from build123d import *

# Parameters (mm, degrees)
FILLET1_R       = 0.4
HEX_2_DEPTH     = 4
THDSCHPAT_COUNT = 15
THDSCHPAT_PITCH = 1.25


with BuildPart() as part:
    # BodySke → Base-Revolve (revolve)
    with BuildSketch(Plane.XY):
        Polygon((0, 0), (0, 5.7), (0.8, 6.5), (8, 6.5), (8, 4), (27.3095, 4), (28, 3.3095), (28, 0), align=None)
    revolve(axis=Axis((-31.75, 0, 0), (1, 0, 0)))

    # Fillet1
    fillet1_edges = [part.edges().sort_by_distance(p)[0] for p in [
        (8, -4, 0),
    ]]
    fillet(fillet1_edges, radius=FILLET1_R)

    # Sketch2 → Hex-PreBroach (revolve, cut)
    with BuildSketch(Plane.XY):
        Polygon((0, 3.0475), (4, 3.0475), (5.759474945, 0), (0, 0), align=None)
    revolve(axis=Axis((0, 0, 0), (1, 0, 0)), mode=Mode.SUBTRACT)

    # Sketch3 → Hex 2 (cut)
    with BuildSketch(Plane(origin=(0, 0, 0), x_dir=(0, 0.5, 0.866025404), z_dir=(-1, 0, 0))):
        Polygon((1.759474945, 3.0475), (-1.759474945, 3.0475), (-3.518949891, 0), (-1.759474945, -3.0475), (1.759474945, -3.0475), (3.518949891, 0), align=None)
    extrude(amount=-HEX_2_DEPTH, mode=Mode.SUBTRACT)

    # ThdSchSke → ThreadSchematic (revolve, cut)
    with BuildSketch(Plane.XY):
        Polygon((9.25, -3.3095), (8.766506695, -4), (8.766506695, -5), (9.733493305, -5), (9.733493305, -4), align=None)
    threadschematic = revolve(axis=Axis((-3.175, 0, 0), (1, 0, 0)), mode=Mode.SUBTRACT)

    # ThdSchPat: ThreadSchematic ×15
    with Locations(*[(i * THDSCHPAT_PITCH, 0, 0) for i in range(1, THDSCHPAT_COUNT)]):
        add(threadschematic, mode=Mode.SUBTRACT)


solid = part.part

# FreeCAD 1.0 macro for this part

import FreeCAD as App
import Part
import Sketcher

V = App.Vector
Q = App.Units.Quantity


def edges_at(feature, points):
    """Names of the edges that pass closest to the given points."""
    edges = feature.Shape.Edges
    near = lambda p: min(range(len(edges)), key=lambda i: edges[i].distToShape(Part.Vertex(*p))[0])
    return sorted({f"Edge{near(p) + 1}" for p in points})


def add_polygon(sketch, points):
    """Adds a closed chain of lines whose ends are joined by coincident constraints."""
    first, n = sketch.GeometryCount, len(points)
    for a, b in zip(points, points[1:] + points[:1]):
        sketch.addGeometry(Part.LineSegment(App.Vector(*a, 0), App.Vector(*b, 0)), False)
    for i in range(n):
        sketch.addConstraint(Sketcher.Constraint("Coincident", first + i, 2, first + (i + 1) % n, 1))

doc = App.newDocument("Part")
params = doc.addObject("Spreadsheet::Sheet", "Params")
for row, (alias, value) in enumerate([
    ("sketch1_width", "28 mm"),
    ("sketch1_width2", "7.2 mm"),
    ("sketch1_height", "5.7 mm"),
    ("sketch1_height2", "2.5 mm"),
    ("revolution_angle", "360 deg"),
    ("fillet_radius", "0.4 mm"),
    ("sketch2_width", "4 mm"),
    ("groove_angle", "360 deg"),
    ("pocket1_length", "4 mm"),
    ("sketch4_height", "1 mm"),
    ("groove2_angle", "360 deg"),
    ("linearpattern_pitch", "1.25 mm"),
], start=1):
    params.set(f"A{row}", alias)
    params.set(f"B{row}", "=" + value)
    params.setAlias(f"B{row}", alias)

body = doc.addObject("PartDesign::Body", "Body")

# Sketch on XY plane
sketch1 = doc.addObject("Sketcher::SketchObject", "Sketch")
body.addObject(sketch1)
sketch1.AttachmentSupport = (doc.XY_Plane, [""])
sketch1.MapMode = "FlatFace"
add_polygon(sketch1, [(0, 5.7), (0, 0), (28, 0), (28, 3.3), (27.3, 4), (8, 4), (8, 6.5), (0.8, 6.5)])  # lines 0-7
sketch1.addConstraint(Sketcher.Constraint("Vertical", 0))
sketch1.addConstraint(Sketcher.Constraint("Horizontal", 1))
sketch1.addConstraint(Sketcher.Constraint("Vertical", 2))
sketch1.addConstraint(Sketcher.Constraint("Horizontal", 4))
sketch1.addConstraint(Sketcher.Constraint("Vertical", 5))
sketch1.addConstraint(Sketcher.Constraint("Horizontal", 6))
sketch1.addConstraint(Sketcher.Constraint("Coincident", 0, 2, -1, 1))
sketch1.addConstraint(Sketcher.Constraint("Perpendicular", 3, 7))
sketch1.addConstraint(Sketcher.Constraint("DistanceX", 1, 1, 1, 2, 28.0))
sketch1.addConstraint(Sketcher.Constraint("Angle", 3, Q("135 deg")))
sketch1.addConstraint(Sketcher.Constraint("DistanceX", 6, 2, 6, 1, 7.2))
sketch1.addConstraint(Sketcher.Constraint("DistanceY", 0, 2, 0, 1, 5.7))
sketch1.addConstraint(Sketcher.Constraint("DistanceY", 5, 1, 5, 2, 2.5))
sketch1.addConstraint(Sketcher.Constraint("DistanceY", -1, 1, 3, 2, 4.0))
sketch1.addConstraint(Sketcher.Constraint("DistanceX", 4, 2, 4, 1, 19.3095))
sketch1.setExpression("Constraints[16]", "Params.sketch1_width")
sketch1.setExpression("Constraints[18]", "Params.sketch1_width2")
sketch1.setExpression("Constraints[19]", "Params.sketch1_height")
sketch1.setExpression("Constraints[20]", "Params.sketch1_height2")
revolution = doc.addObject("PartDesign::Revolution", "Revolution")
body.addObject(revolution)
revolution.Profile = sketch1
revolution.ReferenceAxis = (sketch1, ["H_Axis"])
revolution.setExpression("Angle", "Params.revolution_angle")
doc.recompute()

fillet = doc.addObject("PartDesign::Fillet", "Fillet")
body.addObject(fillet)
fillet.Base = (revolution, edges_at(revolution, [(8, -4, 0)]))
fillet.setExpression("Radius", "Params.fillet_radius")

# Sketch on XY plane
sketch2 = doc.addObject("Sketcher::SketchObject", "Sketch001")
body.addObject(sketch2)
sketch2.AttachmentSupport = (doc.XY_Plane, [""])
sketch2.MapMode = "FlatFace"
add_polygon(sketch2, [(4, 3), (0, 3), (0, 0), (5.8, 0)])  # lines 0-3
sketch2.addConstraint(Sketcher.Constraint("Horizontal", 0))
sketch2.addConstraint(Sketcher.Constraint("Vertical", 1))
sketch2.addConstraint(Sketcher.Constraint("Horizontal", 2))
sketch2.addConstraint(Sketcher.Constraint("Coincident", 1, 2, -1, 1))
sketch2.addConstraint(Sketcher.Constraint("DistanceX", 0, 2, 0, 1, 4.0))
sketch2.addConstraint(Sketcher.Constraint("Angle", 3, Q("120 deg")))
sketch2.addConstraint(Sketcher.Constraint("DistanceY", 1, 2, 1, 1, 3.0475))
sketch2.setExpression("Constraints[8]", "Params.sketch2_width")
groove = doc.addObject("PartDesign::Groove", "Groove")
body.addObject(groove)
groove.Profile = sketch2
groove.ReferenceAxis = (sketch2, ["H_Axis"])
groove.setExpression("Angle", "Params.groove_angle")

# Sketch on YZ plane
sketch3 = doc.addObject("Sketcher::SketchObject", "Sketch002")
body.addObject(sketch3)
sketch3.AttachmentSupport = (doc.YZ_Plane, [""])
sketch3.MapMode = "FlatFace"
add_polygon(sketch3, [(3.5, 0), (1.8, -3), (-1.8, -3), (-3.5, 0), (-1.8, 3), (1.8, 3)])  # lines 0-5
sketch3.addConstraint(Sketcher.Constraint("Horizontal", 1))
sketch3.addConstraint(Sketcher.Constraint("Horizontal", 4))
sketch3.addConstraint(Sketcher.Constraint("Symmetric", 0, 2, 3, 2, -1, 1))
sketch3.addConstraint(Sketcher.Constraint("Symmetric", 2, 2, 5, 2, -1, 1))
sketch3.addConstraint(Sketcher.Constraint("PointOnObject", 2, 2, -1))
sketch3.addConstraint(Sketcher.Constraint("Parallel", 2, 5))
sketch3.addConstraint(Sketcher.Constraint("Vertical", 1, 2, 3, 2))
sketch3.addConstraint(Sketcher.Constraint("Angle", 0, Q("-120 deg")))
sketch3.addConstraint(Sketcher.Constraint("DistanceY", 1, 2, 3, 2, 6.095))
sketch3.addConstraint(Sketcher.Constraint("DistanceX", 1, 2, 1, 1, 3.51895))
pocket1 = doc.addObject("PartDesign::Pocket", "Pocket")
body.addObject(pocket1)
pocket1.Profile = sketch3
pocket1.setExpression("Length", "Params.pocket1_length")
pocket1.Reversed = True

# Sketch on XY plane
sketch4 = doc.addObject("Sketcher::SketchObject", "Sketch003")
body.addObject(sketch4)
sketch4.AttachmentSupport = (doc.XY_Plane, [""])
sketch4.MapMode = "FlatFace"
add_polygon(sketch4, [(9.2, -3.3), (8.8, -4), (8.8, -5), (9.7, -5), (9.7, -4)])  # lines 0-4
sketch4.addConstraint(Sketcher.Constraint("Vertical", 1))
sketch4.addConstraint(Sketcher.Constraint("Horizontal", 2))
sketch4.addConstraint(Sketcher.Constraint("Vertical", 3))
sketch4.addConstraint(Sketcher.Constraint("Horizontal", 0, 2, 3, 2))
sketch4.addConstraint(Sketcher.Constraint("Equal", 0, 4))
sketch4.addConstraint(Sketcher.Constraint("DistanceY", 1, 2, 1, 1, 1.0))
sketch4.addConstraint(Sketcher.Constraint("Angle", 0, Q("-125 deg")))
sketch4.addConstraint(Sketcher.Constraint("DistanceY", 0, 2, -1, 1, 4.0))
sketch4.addConstraint(Sketcher.Constraint("DistanceX", -1, 1, 4, 2, 9.25))
sketch4.addConstraint(Sketcher.Constraint("DistanceY", 4, 2, -1, 1, 3.3095))
sketch4.setExpression("Constraints[10]", "Params.sketch4_height")
groove2 = doc.addObject("PartDesign::Groove", "Groove001")
body.addObject(groove2)
groove2.Profile = sketch4
groove2.ReferenceAxis = (sketch4, ["H_Axis"])
groove2.setExpression("Angle", "Params.groove2_angle")
doc.recompute()

linearpattern = doc.addObject("PartDesign::LinearPattern", "LinearPattern")
body.addObject(linearpattern)
linearpattern.Originals = [groove2]
linearpattern.Direction = (doc.X_Axis, [""])
linearpattern.Mode = "offset"
linearpattern.setExpression("Offset", "Params.linearpattern_pitch")
linearpattern.Occurrences = 15
body.Tip = linearpattern

doc.recompute()
